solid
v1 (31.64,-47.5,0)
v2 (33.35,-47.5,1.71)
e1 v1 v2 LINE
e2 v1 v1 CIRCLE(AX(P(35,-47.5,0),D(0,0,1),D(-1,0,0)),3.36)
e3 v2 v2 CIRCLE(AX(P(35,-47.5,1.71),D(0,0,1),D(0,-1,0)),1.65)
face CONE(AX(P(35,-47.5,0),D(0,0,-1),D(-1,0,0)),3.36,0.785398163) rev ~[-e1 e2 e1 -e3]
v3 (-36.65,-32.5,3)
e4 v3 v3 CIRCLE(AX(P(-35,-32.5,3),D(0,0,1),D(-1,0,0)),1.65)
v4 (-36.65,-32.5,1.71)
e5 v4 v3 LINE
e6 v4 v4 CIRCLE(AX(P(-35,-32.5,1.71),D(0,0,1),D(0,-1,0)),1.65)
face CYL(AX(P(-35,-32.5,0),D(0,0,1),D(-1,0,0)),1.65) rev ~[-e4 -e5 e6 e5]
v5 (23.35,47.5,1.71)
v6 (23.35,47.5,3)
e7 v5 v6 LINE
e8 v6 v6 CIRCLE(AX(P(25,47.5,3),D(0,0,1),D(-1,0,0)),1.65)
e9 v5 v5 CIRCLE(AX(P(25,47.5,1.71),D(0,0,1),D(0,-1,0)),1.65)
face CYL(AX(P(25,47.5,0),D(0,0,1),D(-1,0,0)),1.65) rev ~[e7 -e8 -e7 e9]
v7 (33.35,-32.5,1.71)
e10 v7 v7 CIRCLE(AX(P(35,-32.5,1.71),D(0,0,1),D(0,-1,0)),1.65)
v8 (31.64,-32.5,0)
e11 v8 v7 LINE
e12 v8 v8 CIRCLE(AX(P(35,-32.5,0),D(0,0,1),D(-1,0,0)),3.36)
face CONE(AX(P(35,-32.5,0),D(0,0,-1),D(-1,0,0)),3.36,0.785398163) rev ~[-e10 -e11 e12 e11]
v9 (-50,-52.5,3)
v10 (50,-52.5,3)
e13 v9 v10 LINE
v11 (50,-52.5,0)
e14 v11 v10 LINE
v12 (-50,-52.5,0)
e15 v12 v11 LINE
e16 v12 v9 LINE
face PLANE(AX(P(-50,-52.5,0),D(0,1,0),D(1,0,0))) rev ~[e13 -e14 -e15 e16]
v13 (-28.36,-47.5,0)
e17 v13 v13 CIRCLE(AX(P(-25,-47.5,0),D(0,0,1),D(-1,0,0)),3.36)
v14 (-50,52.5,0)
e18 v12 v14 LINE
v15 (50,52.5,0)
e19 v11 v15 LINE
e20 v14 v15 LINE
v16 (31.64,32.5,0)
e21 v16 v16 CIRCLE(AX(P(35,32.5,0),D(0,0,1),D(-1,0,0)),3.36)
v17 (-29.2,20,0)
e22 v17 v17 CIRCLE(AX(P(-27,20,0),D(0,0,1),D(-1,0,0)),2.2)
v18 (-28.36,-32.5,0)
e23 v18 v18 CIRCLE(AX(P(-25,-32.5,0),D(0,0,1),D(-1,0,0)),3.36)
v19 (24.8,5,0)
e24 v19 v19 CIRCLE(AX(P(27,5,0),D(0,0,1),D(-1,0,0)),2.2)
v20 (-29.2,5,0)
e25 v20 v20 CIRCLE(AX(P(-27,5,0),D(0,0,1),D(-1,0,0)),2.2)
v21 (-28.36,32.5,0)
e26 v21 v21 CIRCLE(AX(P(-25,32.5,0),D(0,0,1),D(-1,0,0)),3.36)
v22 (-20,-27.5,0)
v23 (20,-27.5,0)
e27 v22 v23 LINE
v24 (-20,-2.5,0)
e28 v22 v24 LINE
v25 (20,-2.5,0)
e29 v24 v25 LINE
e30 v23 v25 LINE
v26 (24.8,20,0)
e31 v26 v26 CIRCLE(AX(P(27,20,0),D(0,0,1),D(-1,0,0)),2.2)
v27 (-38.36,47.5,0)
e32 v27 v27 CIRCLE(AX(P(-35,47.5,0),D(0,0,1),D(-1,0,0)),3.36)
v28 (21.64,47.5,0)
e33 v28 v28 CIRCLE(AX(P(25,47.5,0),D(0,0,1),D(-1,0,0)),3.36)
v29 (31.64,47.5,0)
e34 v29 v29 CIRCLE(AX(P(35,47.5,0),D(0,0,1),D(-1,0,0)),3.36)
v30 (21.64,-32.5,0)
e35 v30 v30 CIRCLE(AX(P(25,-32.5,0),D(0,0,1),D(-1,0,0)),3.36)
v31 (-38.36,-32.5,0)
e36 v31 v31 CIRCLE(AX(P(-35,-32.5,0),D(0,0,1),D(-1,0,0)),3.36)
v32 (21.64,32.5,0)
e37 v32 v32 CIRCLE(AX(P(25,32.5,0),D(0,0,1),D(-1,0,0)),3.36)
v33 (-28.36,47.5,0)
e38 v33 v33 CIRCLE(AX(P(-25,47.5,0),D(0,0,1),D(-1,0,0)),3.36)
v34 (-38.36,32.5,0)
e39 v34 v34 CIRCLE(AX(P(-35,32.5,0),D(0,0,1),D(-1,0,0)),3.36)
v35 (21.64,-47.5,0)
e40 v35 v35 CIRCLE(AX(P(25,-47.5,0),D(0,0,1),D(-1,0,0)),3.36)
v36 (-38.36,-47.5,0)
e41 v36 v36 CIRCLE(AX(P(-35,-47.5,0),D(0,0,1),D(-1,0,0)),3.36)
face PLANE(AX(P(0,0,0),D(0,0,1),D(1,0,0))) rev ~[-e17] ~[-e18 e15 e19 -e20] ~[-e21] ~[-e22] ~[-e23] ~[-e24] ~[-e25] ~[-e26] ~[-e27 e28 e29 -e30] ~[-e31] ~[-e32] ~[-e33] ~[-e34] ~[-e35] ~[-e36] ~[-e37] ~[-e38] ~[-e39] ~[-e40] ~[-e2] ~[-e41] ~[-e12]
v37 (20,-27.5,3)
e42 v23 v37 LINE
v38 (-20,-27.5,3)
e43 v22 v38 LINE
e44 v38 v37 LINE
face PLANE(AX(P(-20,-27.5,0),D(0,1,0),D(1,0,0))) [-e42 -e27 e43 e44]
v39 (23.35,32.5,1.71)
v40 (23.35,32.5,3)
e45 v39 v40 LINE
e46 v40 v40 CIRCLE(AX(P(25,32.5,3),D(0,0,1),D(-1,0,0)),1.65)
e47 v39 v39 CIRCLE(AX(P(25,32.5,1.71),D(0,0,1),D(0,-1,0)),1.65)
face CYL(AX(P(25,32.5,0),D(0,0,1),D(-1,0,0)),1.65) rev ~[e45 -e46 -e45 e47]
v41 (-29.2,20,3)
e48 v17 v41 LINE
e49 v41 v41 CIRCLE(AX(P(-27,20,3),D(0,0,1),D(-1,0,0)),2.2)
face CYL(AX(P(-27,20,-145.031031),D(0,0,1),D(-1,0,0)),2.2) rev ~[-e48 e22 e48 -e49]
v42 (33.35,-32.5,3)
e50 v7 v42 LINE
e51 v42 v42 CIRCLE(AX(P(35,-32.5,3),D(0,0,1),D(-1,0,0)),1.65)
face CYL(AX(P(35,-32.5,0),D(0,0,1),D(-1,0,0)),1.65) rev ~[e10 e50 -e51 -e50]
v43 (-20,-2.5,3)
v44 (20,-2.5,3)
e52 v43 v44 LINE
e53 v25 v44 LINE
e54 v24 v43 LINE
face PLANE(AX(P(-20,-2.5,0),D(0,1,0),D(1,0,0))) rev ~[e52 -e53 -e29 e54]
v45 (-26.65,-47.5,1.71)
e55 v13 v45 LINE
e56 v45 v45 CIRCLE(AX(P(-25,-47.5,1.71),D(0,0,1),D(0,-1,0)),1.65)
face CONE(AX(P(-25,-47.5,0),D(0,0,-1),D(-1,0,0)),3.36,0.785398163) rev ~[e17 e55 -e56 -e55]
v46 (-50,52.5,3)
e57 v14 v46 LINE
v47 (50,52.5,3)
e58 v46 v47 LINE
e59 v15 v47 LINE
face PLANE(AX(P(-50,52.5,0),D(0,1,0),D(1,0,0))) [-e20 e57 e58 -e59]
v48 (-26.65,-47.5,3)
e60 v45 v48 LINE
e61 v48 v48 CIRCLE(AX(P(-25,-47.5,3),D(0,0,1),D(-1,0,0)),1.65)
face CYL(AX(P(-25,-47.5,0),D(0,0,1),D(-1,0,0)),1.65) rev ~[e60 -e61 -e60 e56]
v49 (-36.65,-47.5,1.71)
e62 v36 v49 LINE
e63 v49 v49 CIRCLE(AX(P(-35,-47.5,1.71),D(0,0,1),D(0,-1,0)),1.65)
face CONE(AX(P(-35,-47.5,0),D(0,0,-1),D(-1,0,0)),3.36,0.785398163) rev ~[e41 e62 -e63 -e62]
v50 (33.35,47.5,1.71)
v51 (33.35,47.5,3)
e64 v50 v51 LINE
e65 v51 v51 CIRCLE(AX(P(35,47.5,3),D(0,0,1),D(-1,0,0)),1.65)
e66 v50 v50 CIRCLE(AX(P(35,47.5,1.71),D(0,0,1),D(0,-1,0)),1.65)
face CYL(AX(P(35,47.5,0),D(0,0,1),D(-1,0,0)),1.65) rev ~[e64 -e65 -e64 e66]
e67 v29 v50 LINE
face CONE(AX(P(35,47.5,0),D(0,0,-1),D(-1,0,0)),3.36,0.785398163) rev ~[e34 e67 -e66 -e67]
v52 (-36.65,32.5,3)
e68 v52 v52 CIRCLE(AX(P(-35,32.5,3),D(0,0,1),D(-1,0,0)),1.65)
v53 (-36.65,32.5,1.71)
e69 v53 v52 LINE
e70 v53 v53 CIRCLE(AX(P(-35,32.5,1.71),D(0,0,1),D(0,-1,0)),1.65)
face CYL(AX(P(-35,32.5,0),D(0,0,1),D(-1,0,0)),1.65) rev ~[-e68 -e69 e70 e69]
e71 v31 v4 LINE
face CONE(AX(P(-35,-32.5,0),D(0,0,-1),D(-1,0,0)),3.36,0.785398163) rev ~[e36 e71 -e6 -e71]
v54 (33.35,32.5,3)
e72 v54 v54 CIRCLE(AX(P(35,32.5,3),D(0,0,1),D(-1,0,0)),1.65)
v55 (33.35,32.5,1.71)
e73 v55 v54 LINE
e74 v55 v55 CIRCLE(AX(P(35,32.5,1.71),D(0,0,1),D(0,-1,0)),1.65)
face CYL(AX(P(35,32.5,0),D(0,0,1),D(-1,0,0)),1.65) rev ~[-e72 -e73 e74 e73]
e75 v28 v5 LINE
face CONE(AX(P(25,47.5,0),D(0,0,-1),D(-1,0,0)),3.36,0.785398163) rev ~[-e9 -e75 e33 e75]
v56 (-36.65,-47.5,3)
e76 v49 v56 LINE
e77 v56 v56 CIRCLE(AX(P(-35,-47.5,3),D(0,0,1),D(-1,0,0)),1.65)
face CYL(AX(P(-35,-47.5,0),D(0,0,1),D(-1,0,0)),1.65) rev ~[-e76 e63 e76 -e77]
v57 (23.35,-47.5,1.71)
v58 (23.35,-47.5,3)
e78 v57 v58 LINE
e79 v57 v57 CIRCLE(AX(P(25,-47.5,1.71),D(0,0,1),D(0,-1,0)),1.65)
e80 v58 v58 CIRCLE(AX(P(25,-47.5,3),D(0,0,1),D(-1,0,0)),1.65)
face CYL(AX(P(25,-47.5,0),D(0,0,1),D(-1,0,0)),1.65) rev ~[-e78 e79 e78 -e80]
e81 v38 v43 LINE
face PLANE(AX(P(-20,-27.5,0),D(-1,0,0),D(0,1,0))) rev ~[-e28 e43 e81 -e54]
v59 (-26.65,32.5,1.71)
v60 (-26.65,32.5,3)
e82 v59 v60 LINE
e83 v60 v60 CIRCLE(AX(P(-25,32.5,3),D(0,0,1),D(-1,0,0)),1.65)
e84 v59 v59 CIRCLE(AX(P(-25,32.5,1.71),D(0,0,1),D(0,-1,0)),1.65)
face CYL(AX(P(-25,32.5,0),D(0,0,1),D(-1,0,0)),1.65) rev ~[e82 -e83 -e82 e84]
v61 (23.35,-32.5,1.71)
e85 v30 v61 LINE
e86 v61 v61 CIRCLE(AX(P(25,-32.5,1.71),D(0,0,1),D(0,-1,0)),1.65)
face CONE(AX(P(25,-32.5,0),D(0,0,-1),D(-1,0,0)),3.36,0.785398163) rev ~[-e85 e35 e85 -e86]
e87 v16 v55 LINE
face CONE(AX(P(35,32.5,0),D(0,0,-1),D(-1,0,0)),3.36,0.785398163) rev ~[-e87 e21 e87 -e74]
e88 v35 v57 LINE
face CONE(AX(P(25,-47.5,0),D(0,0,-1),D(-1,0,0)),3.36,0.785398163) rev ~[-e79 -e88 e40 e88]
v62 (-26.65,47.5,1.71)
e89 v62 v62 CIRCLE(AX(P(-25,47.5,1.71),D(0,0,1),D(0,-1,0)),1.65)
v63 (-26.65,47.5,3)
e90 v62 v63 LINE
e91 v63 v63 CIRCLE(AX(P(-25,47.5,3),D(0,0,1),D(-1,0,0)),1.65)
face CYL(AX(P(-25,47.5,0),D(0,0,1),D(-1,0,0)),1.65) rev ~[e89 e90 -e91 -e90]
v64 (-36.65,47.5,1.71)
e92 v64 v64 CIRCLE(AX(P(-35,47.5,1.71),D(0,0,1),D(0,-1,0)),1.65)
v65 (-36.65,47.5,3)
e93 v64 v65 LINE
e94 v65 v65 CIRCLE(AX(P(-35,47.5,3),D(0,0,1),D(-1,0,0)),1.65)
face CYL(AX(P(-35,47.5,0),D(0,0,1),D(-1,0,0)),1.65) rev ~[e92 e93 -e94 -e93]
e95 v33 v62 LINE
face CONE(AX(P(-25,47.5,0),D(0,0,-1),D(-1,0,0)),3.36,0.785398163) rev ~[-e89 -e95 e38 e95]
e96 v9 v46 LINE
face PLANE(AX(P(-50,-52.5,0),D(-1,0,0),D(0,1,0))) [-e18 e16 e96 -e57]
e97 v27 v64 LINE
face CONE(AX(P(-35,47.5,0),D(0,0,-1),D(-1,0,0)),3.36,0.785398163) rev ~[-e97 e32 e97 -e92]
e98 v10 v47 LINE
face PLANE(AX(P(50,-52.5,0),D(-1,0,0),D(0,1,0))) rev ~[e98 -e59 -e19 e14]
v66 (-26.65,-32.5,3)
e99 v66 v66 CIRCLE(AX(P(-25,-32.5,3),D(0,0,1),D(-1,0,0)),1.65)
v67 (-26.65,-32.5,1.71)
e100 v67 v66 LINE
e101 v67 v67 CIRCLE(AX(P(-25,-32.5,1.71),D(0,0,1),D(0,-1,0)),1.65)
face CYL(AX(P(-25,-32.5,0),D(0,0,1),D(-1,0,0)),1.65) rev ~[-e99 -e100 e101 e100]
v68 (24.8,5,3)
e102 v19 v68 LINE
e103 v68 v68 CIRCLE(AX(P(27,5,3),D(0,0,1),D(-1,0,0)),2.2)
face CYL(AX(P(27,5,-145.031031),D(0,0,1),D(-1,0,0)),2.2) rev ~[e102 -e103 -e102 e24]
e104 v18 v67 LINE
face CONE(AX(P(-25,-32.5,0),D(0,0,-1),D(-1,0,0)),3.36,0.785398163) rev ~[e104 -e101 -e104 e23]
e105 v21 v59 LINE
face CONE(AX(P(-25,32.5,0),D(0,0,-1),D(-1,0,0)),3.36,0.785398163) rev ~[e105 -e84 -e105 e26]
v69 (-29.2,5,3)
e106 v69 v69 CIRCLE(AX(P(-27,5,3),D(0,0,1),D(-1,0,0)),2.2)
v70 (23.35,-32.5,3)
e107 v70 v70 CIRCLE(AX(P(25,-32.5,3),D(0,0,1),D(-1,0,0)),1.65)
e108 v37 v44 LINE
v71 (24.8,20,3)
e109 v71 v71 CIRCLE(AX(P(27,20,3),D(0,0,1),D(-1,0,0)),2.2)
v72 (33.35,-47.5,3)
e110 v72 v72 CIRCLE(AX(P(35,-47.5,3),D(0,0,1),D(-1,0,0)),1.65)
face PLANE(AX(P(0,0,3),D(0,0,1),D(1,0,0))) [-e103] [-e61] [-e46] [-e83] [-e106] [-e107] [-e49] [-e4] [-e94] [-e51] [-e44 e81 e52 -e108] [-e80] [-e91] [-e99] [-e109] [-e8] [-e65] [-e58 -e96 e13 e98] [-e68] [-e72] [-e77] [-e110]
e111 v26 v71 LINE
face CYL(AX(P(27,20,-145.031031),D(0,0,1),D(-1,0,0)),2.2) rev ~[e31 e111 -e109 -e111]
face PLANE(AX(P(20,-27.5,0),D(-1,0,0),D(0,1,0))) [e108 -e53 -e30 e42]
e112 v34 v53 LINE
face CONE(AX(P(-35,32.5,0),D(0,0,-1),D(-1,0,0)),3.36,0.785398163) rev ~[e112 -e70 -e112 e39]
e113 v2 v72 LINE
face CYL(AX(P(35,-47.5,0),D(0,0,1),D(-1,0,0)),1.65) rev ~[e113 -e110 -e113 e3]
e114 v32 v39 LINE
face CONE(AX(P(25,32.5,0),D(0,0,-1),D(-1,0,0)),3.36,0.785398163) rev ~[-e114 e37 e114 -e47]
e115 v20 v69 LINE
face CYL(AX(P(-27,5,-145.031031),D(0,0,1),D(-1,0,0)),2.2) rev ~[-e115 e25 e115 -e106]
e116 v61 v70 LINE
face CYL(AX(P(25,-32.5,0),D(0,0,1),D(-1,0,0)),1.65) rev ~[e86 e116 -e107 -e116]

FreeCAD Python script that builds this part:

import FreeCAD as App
import Part
import Sketcher
from FreeCAD import Vector
Q = App.Units.Quantity


def add_polygon(sketch, points):
    """Adds a closed chain of lines whose ends are joined by coincident constraints."""
    first, n = sketch.GeometryCount, len(points)
    for a, b in zip(points, points[1:] + points[:1]):
        sketch.addGeometry(Part.LineSegment(App.Vector(*a, 0), App.Vector(*b, 0)), False)
    for i in range(n):
        sketch.addConstraint(Sketcher.Constraint("Coincident", first + i, 2, first + (i + 1) % n, 1))

doc = App.newDocument("Part")
params = doc.addObject("Spreadsheet::Sheet", "Params")
for row, (alias, value) in enumerate([
    ("sketch1_width", "100 mm"),
    ("sketch1_width2", "40 mm"),
    ("sketch1_height", "105 mm"),
    ("sketch1_height2", "25 mm"),
    ("pad1_length", "3 mm"),
    ("sketch2_diameter", "3.3 mm"),
    ("hole_diameter", "3.3 mm"),
    ("hole_csink_diameter", "6.72 mm"),
    ("sketch3_diameter", "4.4 mm"),
    ("hole2_diameter", "4.4 mm"),
], start=1):
    params.set(f"A{row}", alias)
    params.set(f"B{row}", "=" + value)
    params.setAlias(f"B{row}", alias)

body = doc.addObject("PartDesign::Body", "Body")

sketch1 = doc.addObject("Sketcher::SketchObject", "Sketch")
body.addObject(sketch1)
sketch1.AttachmentSupport = (doc.XY_Plane, [""])
sketch1.MapMode = "FlatFace"
add_polygon(sketch1, [(-50, 52), (-50, -52), (50, -52), (50, 52)])
add_polygon(sketch1, [(20, -28), (-20, -28), (-20, -2), (20, -2)])
sketch1.addConstraint(Sketcher.Constraint("Vertical", 0))
sketch1.addConstraint(Sketcher.Constraint("Horizontal", 1))
sketch1.addConstraint(Sketcher.Constraint("Vertical", 2))
sketch1.addConstraint(Sketcher.Constraint("Horizontal", 3))
sketch1.addConstraint(Sketcher.Constraint("Horizontal", 4))
sketch1.addConstraint(Sketcher.Constraint("Vertical", 5))
sketch1.addConstraint(Sketcher.Constraint("Horizontal", 6))
sketch1.addConstraint(Sketcher.Constraint("Vertical", 7))
sketch1.addConstraint(Sketcher.Constraint("Symmetric", 0, 2, 2, 2, -1, 1))
sketch1.addConstraint(Sketcher.Constraint("DistanceX", 1, 1, 1, 2, Q("100 mm")))
sketch1.addConstraint(Sketcher.Constraint("DistanceX", 4, 2, 4, 1, Q("40 mm")))
sketch1.addConstraint(Sketcher.Constraint("DistanceY", 0, 2, 0, 1, Q("105 mm")))
sketch1.addConstraint(Sketcher.Constraint("DistanceY", 5, 1, 5, 2, Q("25 mm")))
sketch1.addConstraint(Sketcher.Constraint("DistanceX", 4, 2, -1, 1, Q("20 mm")))
sketch1.addConstraint(Sketcher.Constraint("DistanceY", 0, 2, 4, 2, Q("25 mm")))
sketch1.setExpression("Constraints[17]", "Params.sketch1_width")
sketch1.setExpression("Constraints[18]", "Params.sketch1_width2")
sketch1.setExpression("Constraints[19]", "Params.sketch1_height")
sketch1.setExpression("Constraints[20]", "Params.sketch1_height2")
pad1 = doc.addObject("PartDesign::Pad", "Pad")
body.addObject(pad1)
pad1.Profile = sketch1
pad1.setExpression("Length", "Params.pad1_length")

sketch2 = doc.addObject("Sketcher::SketchObject", "Sketch001")
body.addObject(sketch2)
sketch2.AttachmentSupport = (doc.XY_Plane, [""])
sketch2.MapMode = "FlatFace"
sketch2.addGeometry(Part.Circle(Vector(-35, 32.5, 0), Vector(0, 0, 1), 1.6), False)
sketch2.addGeometry(Part.Circle(Vector(-25, 32.5, 0), Vector(0, 0, 1), 1.6), False)
sketch2.addGeometry(Part.Circle(Vector(-25, 47.5, 0), Vector(0, 0, 1), 1.6), False)
sketch2.addGeometry(Part.Circle(Vector(-35, 47.5, 0), Vector(0, 0, 1), 1.6), False)
sketch2.addGeometry(Part.Circle(Vector(25, 47.5, 0), Vector(0, 0, 1), 1.6), False)
sketch2.addGeometry(Part.Circle(Vector(25, 32.5, 0), Vector(0, 0, 1), 1.6), False)
sketch2.addGeometry(Part.Circle(Vector(35, 32.5, 0), Vector(0, 0, 1), 1.6), False)
sketch2.addGeometry(Part.Circle(Vector(35, 47.5, 0), Vector(0, 0, 1), 1.6), False)
sketch2.addGeometry(Part.Circle(Vector(25, -32.5, 0), Vector(0, 0, 1), 1.6), False)
sketch2.addGeometry(Part.Circle(Vector(35, -32.5, 0), Vector(0, 0, 1), 1.6), False)
sketch2.addGeometry(Part.Circle(Vector(35, -47.5, 0), Vector(0, 0, 1), 1.6), False)
sketch2.addGeometry(Part.Circle(Vector(25, -47.5, 0), Vector(0, 0, 1), 1.6), False)
sketch2.addGeometry(Part.Circle(Vector(-25, -47.5, 0), Vector(0, 0, 1), 1.6), False)
sketch2.addGeometry(Part.Circle(Vector(-35, -47.5, 0), Vector(0, 0, 1), 1.6), False)
sketch2.addGeometry(Part.Circle(Vector(-35, -32.5, 0), Vector(0, 0, 1), 1.6), False)
sketch2.addGeometry(Part.Circle(Vector(-25, -32.5, 0), Vector(0, 0, 1), 1.6), False)
sketch2.addConstraint(Sketcher.Constraint("Equal", 0, 1))
sketch2.addConstraint(Sketcher.Constraint("Equal", 1, 2))
sketch2.addConstraint(Sketcher.Constraint("Equal", 2, 3))
sketch2.addConstraint(Sketcher.Constraint("Equal", 3, 4))
sketch2.addConstraint(Sketcher.Constraint("Equal", 4, 5))
sketch2.addConstraint(Sketcher.Constraint("Equal", 5, 6))
sketch2.addConstraint(Sketcher.Constraint("Equal", 6, 7))
sketch2.addConstraint(Sketcher.Constraint("Equal", 7, 8))
sketch2.addConstraint(Sketcher.Constraint("Equal", 8, 9))
sketch2.addConstraint(Sketcher.Constraint("Equal", 9, 10))
sketch2.addConstraint(Sketcher.Constraint("Equal", 10, 11))
sketch2.addConstraint(Sketcher.Constraint("Equal", 11, 12))
sketch2.addConstraint(Sketcher.Constraint("Equal", 12, 13))
sketch2.addConstraint(Sketcher.Constraint("Equal", 13, 14))
sketch2.addConstraint(Sketcher.Constraint("Equal", 14, 15))
sketch2.addConstraint(Sketcher.Constraint("Symmetric", 1, 3, 8, 3, -1, 1))
sketch2.addConstraint(Sketcher.Constraint("Symmetric", 0, 3, 9, 3, -1, 1))
sketch2.addConstraint(Sketcher.Constraint("Symmetric", 3, 3, 10, 3, -1, 1))
sketch2.addConstraint(Sketcher.Constraint("Symmetric", 2, 3, 11, 3, -1, 1))
sketch2.addConstraint(Sketcher.Constraint("Symmetric", 4, 3, 12, 3, -1, 1))
sketch2.addConstraint(Sketcher.Constraint("Symmetric", 7, 3, 13, 3, -1, 1))
sketch2.addConstraint(Sketcher.Constraint("Symmetric", 6, 3, 14, 3, -1, 1))
sketch2.addConstraint(Sketcher.Constraint("Symmetric", 5, 3, 15, 3, -1, 1))
sketch2.addConstraint(Sketcher.Constraint("Symmetric", 2, 3, 4, 3, -2))
sketch2.addConstraint(Sketcher.Constraint("Symmetric", 1, 3, 5, 3, -2))
sketch2.addConstraint(Sketcher.Constraint("Symmetric", 0, 3, 6, 3, -2))
sketch2.addConstraint(Sketcher.Constraint("Symmetric", 3, 3, 7, 3, -2))
sketch2.addConstraint(Sketcher.Constraint("Horizontal", 0, 3, 1, 3))
sketch2.addConstraint(Sketcher.Constraint("Horizontal", 2, 3, 3, 3))
sketch2.addConstraint(Sketcher.Constraint("Vertical", 1, 3, 2, 3))
sketch2.addConstraint(Sketcher.Constraint("Vertical", 0, 3, 3, 3))
sketch2.addConstraint(Sketcher.Constraint("Diameter", 0, Q("3.3 mm")))
sketch2.addConstraint(Sketcher.Constraint("DistanceX", 0, 3, -1, 1, Q("35 mm")))
sketch2.addConstraint(Sketcher.Constraint("DistanceX", 1, 3, -1, 1, Q("25 mm")))
sketch2.addConstraint(Sketcher.Constraint("DistanceY", 1, 3, 2, 3, Q("15 mm")))
sketch2.addConstraint(Sketcher.Constraint("DistanceY", 8, 3, 5, 3, Q("65 mm")))
sketch2.setExpression("Constraints[31]", "Params.sketch2_diameter")
doc.recompute()
hole = doc.addObject("PartDesign::Hole", "Hole")
body.addObject(hole)
hole.Profile = sketch2
hole.ThreadType = "None"
hole.setExpression("Diameter", "Params.hole_diameter")
hole.DepthType = "ThroughAll"
hole.HoleCutType = "Countersink"
hole.setExpression("HoleCutDiameter", "Params.hole_csink_diameter")
hole.HoleCutCountersinkAngle = 90
hole.Reversed = True

sketch3 = doc.addObject("Sketcher::SketchObject", "Sketch002")
body.addObject(sketch3)
sketch3.AttachmentSupport = (doc.XY_Plane, [""])
sketch3.MapMode = "FlatFace"
sketch3.addGeometry(Part.Circle(Vector(27, 5, 0), Vector(0, 0, 1), 2.2), False)
sketch3.addGeometry(Part.Circle(Vector(27, 20, 0), Vector(0, 0, 1), 2.2), False)
sketch3.addGeometry(Part.Circle(Vector(-27, 5, 0), Vector(0, 0, 1), 2.2), False)
sketch3.addGeometry(Part.Circle(Vector(-27, 20, 0), Vector(0, 0, 1), 2.2), False)
sketch3.addConstraint(Sketcher.Constraint("Equal", 0, 1))
sketch3.addConstraint(Sketcher.Constraint("Equal", 1, 2))
sketch3.addConstraint(Sketcher.Constraint("Equal", 2, 3))
sketch3.addConstraint(Sketcher.Constraint("Symmetric", 0, 3, 2, 3, -2))
sketch3.addConstraint(Sketcher.Constraint("Symmetric", 1, 3, 3, 3, -2))
sketch3.addConstraint(Sketcher.Constraint("Vertical", 0, 3, 1, 3))
sketch3.addConstraint(Sketcher.Constraint("Diameter", 0, Q("4.4 mm")))
sketch3.addConstraint(Sketcher.Constraint("DistanceX", -1, 1, 0, 3, Q("27 mm")))
sketch3.addConstraint(Sketcher.Constraint("DistanceY", -1, 1, 0, 3, Q("5 mm")))
sketch3.addConstraint(Sketcher.Constraint("DistanceY", -1, 1, 1, 3, Q("20 mm")))
sketch3.setExpression("Constraints[6]", "Params.sketch3_diameter")
doc.recompute()
hole2 = doc.addObject("PartDesign::Hole", "Hole001")
body.addObject(hole2)
hole2.Profile = sketch3
hole2.ThreadType = "None"
hole2.setExpression("Diameter", "Params.hole2_diameter")
hole2.DepthType = "ThroughAll"
hole2.Reversed = True

doc.recompute()
